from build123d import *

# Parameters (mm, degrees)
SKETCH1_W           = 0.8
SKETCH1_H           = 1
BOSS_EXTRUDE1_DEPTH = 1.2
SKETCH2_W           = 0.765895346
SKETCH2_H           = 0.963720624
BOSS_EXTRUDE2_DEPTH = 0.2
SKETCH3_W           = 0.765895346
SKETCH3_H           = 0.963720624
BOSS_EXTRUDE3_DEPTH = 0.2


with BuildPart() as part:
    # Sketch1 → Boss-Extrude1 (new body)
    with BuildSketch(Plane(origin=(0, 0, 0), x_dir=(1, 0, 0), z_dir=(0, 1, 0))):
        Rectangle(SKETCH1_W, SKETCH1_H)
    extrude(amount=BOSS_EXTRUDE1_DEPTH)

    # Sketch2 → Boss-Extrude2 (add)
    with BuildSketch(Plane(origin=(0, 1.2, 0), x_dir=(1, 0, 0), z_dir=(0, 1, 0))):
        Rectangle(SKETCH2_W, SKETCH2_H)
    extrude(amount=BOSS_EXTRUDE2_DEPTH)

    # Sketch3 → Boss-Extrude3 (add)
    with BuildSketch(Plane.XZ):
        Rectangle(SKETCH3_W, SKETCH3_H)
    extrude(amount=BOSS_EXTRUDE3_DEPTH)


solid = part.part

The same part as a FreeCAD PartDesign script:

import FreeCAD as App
import Part
import Sketcher
from FreeCAD import Vector
Q = App.Units.Quantity


def add_polygon(sketch, points):
    """Adds a closed chain of lines whose ends are joined by coincident constraints."""
    first, n = sketch.GeometryCount, len(points)
    for a, b in zip(points, points[1:] + points[:1]):
        sketch.addGeometry(Part.LineSegment(App.Vector(*a, 0), App.Vector(*b, 0)), False)
    for i in range(n):
        sketch.addConstraint(Sketcher.Constraint("Coincident", first + i, 2, first + (i + 1) % n, 1))

doc = App.newDocument("Part")
params = doc.addObject("Spreadsheet::Sheet", "Params")
for row, (alias, value) in enumerate([
    ("sketch1_height", "1 mm"),
    ("sketch1_width", "0.8 mm"),
    ("pad1_length", "1.2 mm"),
    ("pad2_length", "0.2 mm"),
    ("pad3_length", "0.2 mm"),
], start=1):
    params.set(f"A{row}", alias)
    params.set(f"B{row}", "=" + value)
    params.setAlias(f"B{row}", alias)

body = doc.addObject("PartDesign::Body", "Body")

# Sketch on XZ plane
sketch1 = body.newObject("Sketcher::SketchObject", "Sketch")
sketch1.AttachmentSupport = (doc.getObject("XZ_Plane"), [""])
sketch1.MapMode = "FlatFace"
add_polygon(sketch1, [(-0.4, -0.5), (-0.4, 0.5), (0.4, 0.5), (0.4, -0.5)])  # lines 0-3
sketch1.addConstraint(Sketcher.Constraint("Vertical", 0))
sketch1.addConstraint(Sketcher.Constraint("Horizontal", 1))
sketch1.addConstraint(Sketcher.Constraint("Vertical", 2))
sketch1.addConstraint(Sketcher.Constraint("Horizontal", 3))
sketch1.addConstraint(Sketcher.Constraint("Symmetric", 0, 2, 2, 2, -1, 1))
sketch1.addConstraint(Sketcher.Constraint("DistanceY", 0, 1, 0, 2, Q("1 mm")))
sketch1.addConstraint(Sketcher.Constraint("DistanceX", 1, 1, 1, 2, Q("0.8 mm")))
sketch1.setExpression("Constraints[9]", "Params.sketch1_height")
sketch1.setExpression("Constraints[10]", "Params.sketch1_width")
pad1 = body.newObject("PartDesign::Pad", "Pad")
pad1.Profile = sketch1
pad1.setExpression("Length", "Params.pad1_length")
pad1.Reversed = True

# Sketch on XZ plane
sketch2 = body.newObject("Sketcher::SketchObject", "Sketch001")
sketch2.AttachmentSupport = (doc.getObject("XZ_Plane"), [""])
sketch2.MapMode = "FlatFace"
sketch2.AttachmentOffset = App.Placement(Vector(0, 0, -1.2), App.Rotation())
add_polygon(sketch2, [(-0.382948, -0.48186), (-0.382948, 0.48186), (0.382948, 0.48186), (0.382948, -0.48186)])  # lines 0-3
sketch2.addConstraint(Sketcher.Constraint("Vertical", 0))
sketch2.addConstraint(Sketcher.Constraint("Horizontal", 1))
sketch2.addConstraint(Sketcher.Constraint("Vertical", 2))
sketch2.addConstraint(Sketcher.Constraint("Horizontal", 3))
sketch2.addConstraint(Sketcher.Constraint("Symmetric", 0, 2, 2, 2, -1, 1))
sketch2.addConstraint(Sketcher.Constraint("DistanceY", 0, 1, 0, 2, Q("0.963721 mm")))
sketch2.addConstraint(Sketcher.Constraint("DistanceX", 1, 1, 1, 2, Q("0.765895 mm")))
pad2 = body.newObject("PartDesign::Pad", "Pad001")
pad2.Profile = sketch2
pad2.setExpression("Length", "Params.pad2_length")
pad2.Reversed = True

# Sketch on XZ plane
sketch3 = body.newObject("Sketcher::SketchObject", "Sketch002")
sketch3.AttachmentSupport = (doc.getObject("XZ_Plane"), [""])
sketch3.MapMode = "FlatFace"
add_polygon(sketch3, [(-0.382948, 0.48186), (-0.382948, -0.48186), (0.382948, -0.48186), (0.382948, 0.48186)])  # lines 0-3
sketch3.addConstraint(Sketcher.Constraint("Vertical", 0))
sketch3.addConstraint(Sketcher.Constraint("Horizontal", 1))
sketch3.addConstraint(Sketcher.Constraint("Vertical", 2))
sketch3.addConstraint(Sketcher.Constraint("Horizontal", 3))
sketch3.addConstraint(Sketcher.Constraint("Symmetric", 0, 2, 2, 2, -1, 1))
sketch3.addConstraint(Sketcher.Constraint("DistanceY", 0, 2, 0, 1, Q("0.963721 mm")))
sketch3.addConstraint(Sketcher.Constraint("DistanceX", 1, 1, 1, 2, Q("0.765895 mm")))
pad3 = body.newObject("PartDesign::Pad", "Pad002")
pad3.Profile = sketch3
pad3.setExpression("Length", "Params.pad3_length")

doc.recompute()
